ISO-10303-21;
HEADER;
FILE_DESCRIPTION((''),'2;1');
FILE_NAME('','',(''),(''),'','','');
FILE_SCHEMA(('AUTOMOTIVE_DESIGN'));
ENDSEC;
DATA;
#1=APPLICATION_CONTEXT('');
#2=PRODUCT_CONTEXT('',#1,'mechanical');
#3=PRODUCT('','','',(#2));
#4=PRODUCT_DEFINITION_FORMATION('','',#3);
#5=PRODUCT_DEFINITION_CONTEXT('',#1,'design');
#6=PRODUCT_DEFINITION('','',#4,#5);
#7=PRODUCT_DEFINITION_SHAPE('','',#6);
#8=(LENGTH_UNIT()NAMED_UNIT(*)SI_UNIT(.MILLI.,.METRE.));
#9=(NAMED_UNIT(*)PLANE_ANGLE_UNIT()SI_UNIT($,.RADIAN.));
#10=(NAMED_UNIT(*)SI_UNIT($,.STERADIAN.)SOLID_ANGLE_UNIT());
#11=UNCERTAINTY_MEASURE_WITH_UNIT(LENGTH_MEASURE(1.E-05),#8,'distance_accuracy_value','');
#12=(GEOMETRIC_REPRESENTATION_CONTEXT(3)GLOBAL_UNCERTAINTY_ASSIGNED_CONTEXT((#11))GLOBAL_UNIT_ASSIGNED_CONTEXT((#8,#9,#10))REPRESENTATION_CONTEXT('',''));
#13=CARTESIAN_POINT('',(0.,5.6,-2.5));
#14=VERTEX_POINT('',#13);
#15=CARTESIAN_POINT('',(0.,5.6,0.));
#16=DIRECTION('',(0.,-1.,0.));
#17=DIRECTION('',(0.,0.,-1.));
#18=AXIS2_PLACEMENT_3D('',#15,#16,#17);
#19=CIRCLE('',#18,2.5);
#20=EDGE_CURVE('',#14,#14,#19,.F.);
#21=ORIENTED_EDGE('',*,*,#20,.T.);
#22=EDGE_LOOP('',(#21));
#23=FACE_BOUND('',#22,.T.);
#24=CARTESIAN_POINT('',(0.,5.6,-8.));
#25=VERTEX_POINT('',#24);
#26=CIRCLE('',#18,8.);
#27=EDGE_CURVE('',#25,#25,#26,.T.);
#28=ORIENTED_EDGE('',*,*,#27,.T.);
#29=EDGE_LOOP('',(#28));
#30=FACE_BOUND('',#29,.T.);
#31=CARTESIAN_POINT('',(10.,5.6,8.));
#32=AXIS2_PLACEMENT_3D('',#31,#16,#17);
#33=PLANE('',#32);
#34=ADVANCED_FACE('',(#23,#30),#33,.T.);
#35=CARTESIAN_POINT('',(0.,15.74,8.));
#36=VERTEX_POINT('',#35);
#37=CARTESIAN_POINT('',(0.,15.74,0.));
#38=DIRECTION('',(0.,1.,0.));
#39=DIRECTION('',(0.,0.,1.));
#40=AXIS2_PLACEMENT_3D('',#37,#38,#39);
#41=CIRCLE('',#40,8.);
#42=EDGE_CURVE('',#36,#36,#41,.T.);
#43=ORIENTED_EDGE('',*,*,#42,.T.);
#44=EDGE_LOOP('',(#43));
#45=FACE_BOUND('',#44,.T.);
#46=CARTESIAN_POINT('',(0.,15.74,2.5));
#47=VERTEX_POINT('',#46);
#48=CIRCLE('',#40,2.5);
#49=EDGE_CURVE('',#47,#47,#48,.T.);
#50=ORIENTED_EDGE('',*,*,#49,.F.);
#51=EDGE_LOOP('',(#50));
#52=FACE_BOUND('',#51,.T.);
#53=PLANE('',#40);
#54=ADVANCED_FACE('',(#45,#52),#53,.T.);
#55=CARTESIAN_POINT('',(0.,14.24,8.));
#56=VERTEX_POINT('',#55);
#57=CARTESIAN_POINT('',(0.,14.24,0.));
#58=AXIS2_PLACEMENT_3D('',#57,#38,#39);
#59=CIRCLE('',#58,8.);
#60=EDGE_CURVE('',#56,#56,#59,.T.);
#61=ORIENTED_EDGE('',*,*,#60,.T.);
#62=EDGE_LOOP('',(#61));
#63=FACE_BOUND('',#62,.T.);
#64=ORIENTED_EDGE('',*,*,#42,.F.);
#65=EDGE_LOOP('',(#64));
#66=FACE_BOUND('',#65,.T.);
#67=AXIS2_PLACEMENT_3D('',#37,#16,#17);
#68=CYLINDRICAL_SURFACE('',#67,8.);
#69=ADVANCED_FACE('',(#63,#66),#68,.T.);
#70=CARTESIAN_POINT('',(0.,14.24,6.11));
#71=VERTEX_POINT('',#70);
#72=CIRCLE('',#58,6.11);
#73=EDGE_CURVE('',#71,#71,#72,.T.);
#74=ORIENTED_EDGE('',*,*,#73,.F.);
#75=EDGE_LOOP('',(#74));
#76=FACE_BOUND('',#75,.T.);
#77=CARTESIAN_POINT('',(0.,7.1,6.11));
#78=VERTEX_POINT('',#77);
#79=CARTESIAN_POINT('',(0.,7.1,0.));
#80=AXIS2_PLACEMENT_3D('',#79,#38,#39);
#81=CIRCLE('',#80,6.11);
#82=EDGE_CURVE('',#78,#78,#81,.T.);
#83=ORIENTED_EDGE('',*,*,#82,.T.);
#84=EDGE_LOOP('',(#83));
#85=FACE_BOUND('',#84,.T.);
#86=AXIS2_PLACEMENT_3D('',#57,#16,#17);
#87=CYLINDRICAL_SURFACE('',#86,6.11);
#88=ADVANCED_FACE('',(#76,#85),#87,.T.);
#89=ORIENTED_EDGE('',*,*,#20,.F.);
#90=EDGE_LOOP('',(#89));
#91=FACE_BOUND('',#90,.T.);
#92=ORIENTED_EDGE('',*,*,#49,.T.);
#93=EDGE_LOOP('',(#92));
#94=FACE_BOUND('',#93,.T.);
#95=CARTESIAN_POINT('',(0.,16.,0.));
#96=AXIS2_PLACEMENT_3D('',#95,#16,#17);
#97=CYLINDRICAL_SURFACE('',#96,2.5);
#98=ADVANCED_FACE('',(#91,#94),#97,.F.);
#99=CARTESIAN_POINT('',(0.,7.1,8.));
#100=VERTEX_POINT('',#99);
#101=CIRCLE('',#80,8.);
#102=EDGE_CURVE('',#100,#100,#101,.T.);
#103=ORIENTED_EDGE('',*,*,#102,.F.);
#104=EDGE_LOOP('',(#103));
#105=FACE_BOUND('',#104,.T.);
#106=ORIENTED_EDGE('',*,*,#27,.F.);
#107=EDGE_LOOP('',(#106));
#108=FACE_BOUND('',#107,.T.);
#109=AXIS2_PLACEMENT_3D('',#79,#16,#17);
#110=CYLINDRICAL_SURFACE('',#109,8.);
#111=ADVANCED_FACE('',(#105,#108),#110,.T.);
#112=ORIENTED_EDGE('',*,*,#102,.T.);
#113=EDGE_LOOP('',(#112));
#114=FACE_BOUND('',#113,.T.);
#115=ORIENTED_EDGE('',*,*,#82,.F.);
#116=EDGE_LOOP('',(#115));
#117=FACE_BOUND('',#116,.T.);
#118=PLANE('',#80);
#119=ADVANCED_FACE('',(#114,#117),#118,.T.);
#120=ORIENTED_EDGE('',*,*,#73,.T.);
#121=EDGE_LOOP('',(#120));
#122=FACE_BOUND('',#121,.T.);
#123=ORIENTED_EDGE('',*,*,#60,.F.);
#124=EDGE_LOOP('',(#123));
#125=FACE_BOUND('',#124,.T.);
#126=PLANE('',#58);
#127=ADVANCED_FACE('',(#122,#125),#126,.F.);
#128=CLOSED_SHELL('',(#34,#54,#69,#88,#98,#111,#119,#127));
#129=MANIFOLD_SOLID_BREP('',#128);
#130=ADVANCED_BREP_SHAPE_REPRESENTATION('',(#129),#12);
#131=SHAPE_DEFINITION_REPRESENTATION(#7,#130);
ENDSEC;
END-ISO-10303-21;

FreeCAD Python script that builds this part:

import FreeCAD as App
import Part
import Sketcher

V = App.Vector
Q = App.Units.Quantity

doc = App.newDocument("Part")
params = doc.addObject("Spreadsheet::Sheet", "Params")
for row, (alias, value) in enumerate([
    ("sketch1_diameter", "16 mm"),
    ("pad1_length", "7.1 mm"),
    ("sketch2_diameter", "12.22 mm"),
    ("pad2_length", "7.14 mm"),
    ("sketch3_diameter", "5 mm"),
    ("pocket1_length", "16 mm"),
    ("sketch4_diameter", "16 mm"),
    ("pad3_length", "1.5 mm"),
    ("sketch5_diameter", "5 mm"),
    ("pocket2_length", "15.74 mm"),
    ("sketch6_width", "6 mm"),
    ("sketch6_height", "16 mm"),
], start=1):
    params.set(f"A{row}", alias)
    params.set(f"B{row}", "=" + value)
    params.setAlias(f"B{row}", alias)

body = doc.addObject("PartDesign::Body", "Body")

# Sketch on XZ plane
sketch1 = doc.addObject("Sketcher::SketchObject", "Sketch")
body.addObject(sketch1)
sketch1.AttachmentSupport = (doc.XZ_Plane, [""])
sketch1.MapMode = "FlatFace"
sketch1.addGeometry(Part.Circle(V(0, 0, 0), V(0, 0, 1), 8), False)
sketch1.addConstraint([
    Sketcher.Constraint("Coincident", 0, 3, -1, 1),
    Sketcher.Constraint("Diameter", 0, Q("16 mm")),
])
sketch1.setExpression("Constraints[1]", "Params.sketch1_diameter")
pad1 = doc.addObject("PartDesign::Pad", "Pad")
body.addObject(pad1)
pad1.Profile = sketch1
pad1.setExpression("Length", "Params.pad1_length")
pad1.Reversed = True

# Sketch on XZ plane
sketch2 = doc.addObject("Sketcher::SketchObject", "Sketch001")
body.addObject(sketch2)
sketch2.AttachmentSupport = (doc.XZ_Plane, [""])
sketch2.MapMode = "FlatFace"
sketch2.AttachmentOffset = App.Placement(V(0, 0, -7.1), App.Rotation())
sketch2.addGeometry(Part.Circle(V(0, 0, 0), V(0, 0, 1), 6), False)
sketch2.addConstraint([
    Sketcher.Constraint("Coincident", 0, 3, -1, 1),
    Sketcher.Constraint("Diameter", 0, Q("12.22 mm")),
])
sketch2.setExpression("Constraints[1]", "Params.sketch2_diameter")
pad2 = doc.addObject("PartDesign::Pad", "Pad001")
body.addObject(pad2)
pad2.Profile = sketch2
pad2.setExpression("Length", "Params.pad2_length")
pad2.Reversed = True

# Sketch on XZ plane
sketch3 = doc.addObject("Sketcher::SketchObject", "Sketch002")
body.addObject(sketch3)
sketch3.AttachmentSupport = (doc.XZ_Plane, [""])
sketch3.MapMode = "FlatFace"
sketch3.addGeometry(Part.Circle(V(0, 0, 0), V(0, 0, 1), 2.5), False)
sketch3.addConstraint([
    Sketcher.Constraint("Coincident", 0, 3, -1, 1),
    Sketcher.Constraint("Diameter", 0, Q("5 mm")),
])
sketch3.setExpression("Constraints[1]", "Params.sketch3_diameter")
pocket1 = doc.addObject("PartDesign::Pocket", "Pocket")
body.addObject(pocket1)
pocket1.Profile = sketch3
pocket1.setExpression("Length", "Params.pocket1_length")

# Sketch on XZ plane
sketch4 = doc.addObject("Sketcher::SketchObject", "Sketch003")
body.addObject(sketch4)
sketch4.AttachmentSupport = (doc.XZ_Plane, [""])
sketch4.MapMode = "FlatFace"
sketch4.AttachmentOffset = App.Placement(V(0, 0, -14.24), App.Rotation())
sketch4.addGeometry(Part.Circle(V(0, 0, 0), V(0, 0, 1), 8), False)
sketch4.addConstraint([
    Sketcher.Constraint("Coincident", 0, 3, -1, 1),
    Sketcher.Constraint("Diameter", 0, Q("16 mm")),
])
sketch4.setExpression("Constraints[1]", "Params.sketch4_diameter")
pad3 = doc.addObject("PartDesign::Pad", "Pad002")
body.addObject(pad3)
pad3.Profile = sketch4
pad3.setExpression("Length", "Params.pad3_length")
pad3.Reversed = True

# Sketch on XZ plane
sketch5 = doc.addObject("Sketcher::SketchObject", "Sketch004")
body.addObject(sketch5)
sketch5.AttachmentSupport = (doc.XZ_Plane, [""])
sketch5.MapMode = "FlatFace"
sketch5.AttachmentOffset = App.Placement(V(0, 0, -15.74), App.Rotation())
sketch5.addGeometry(Part.Circle(V(0, 0, 0), V(0, 0, 1), 2.5), False)
sketch5.addConstraint([
    Sketcher.Constraint("Coincident", 0, 3, -1, 1),
    Sketcher.Constraint("Diameter", 0, Q("5 mm")),
])
sketch5.setExpression("Constraints[1]", "Params.sketch5_diameter")
pocket2 = doc.addObject("PartDesign::Pocket", "Pocket001")
body.addObject(pocket2)
pocket2.Profile = sketch5
pocket2.setExpression("Length", "Params.pocket2_length")
pocket2.Reversed = True

# Sketch on YZ plane
sketch6 = doc.addObject("Sketcher::SketchObject", "Sketch005")
body.addObject(sketch6)
sketch6.AttachmentSupport = (doc.YZ_Plane, [""])
sketch6.MapMode = "FlatFace"
sketch6.addGeometry([
    Part.LineSegment(V(6, 8, 0), V(0, 8, 0)),
    Part.LineSegment(V(0, 8, 0), V(0, -8, 0)),
    Part.LineSegment(V(0, -8, 0), V(6, -8, 0)),
    Part.LineSegment(V(6, -8, 0), V(6, 8, 0)),
], False)
sketch6.addConstraint([
    Sketcher.Constraint("Coincident", 0, 2, 1, 1),
    Sketcher.Constraint("Coincident", 1, 2, 2, 1),
    Sketcher.Constraint("Coincident", 2, 2, 3, 1),
    Sketcher.Constraint("Coincident", 3, 2, 0, 1),
    Sketcher.Constraint("Horizontal", 0),
    Sketcher.Constraint("Vertical", 1),
    Sketcher.Constraint("Horizontal", 2),
    Sketcher.Constraint("Vertical", 3),
    Sketcher.Constraint("DistanceX", 0, 2, 0, 1, Q("6 mm")),
    Sketcher.Constraint("DistanceY", 1, 2, 1, 1, Q("16 mm")),
    Sketcher.Constraint("DistanceY", -1, 1, 0, 2, Q("8 mm")),
    Sketcher.Constraint("DistanceX", 0, 2, -1, 1, Q("0.4 mm")),
])
sketch6.setExpression("Constraints[8]", "Params.sketch6_width")
sketch6.setExpression("Constraints[9]", "Params.sketch6_height")
pocket3 = doc.addObject("PartDesign::Pocket", "Pocket002")
body.addObject(pocket3)
pocket3.Profile = sketch6
pocket3.Type = "ThroughAll"
pocket3.Midplane = True

doc.recompute()
